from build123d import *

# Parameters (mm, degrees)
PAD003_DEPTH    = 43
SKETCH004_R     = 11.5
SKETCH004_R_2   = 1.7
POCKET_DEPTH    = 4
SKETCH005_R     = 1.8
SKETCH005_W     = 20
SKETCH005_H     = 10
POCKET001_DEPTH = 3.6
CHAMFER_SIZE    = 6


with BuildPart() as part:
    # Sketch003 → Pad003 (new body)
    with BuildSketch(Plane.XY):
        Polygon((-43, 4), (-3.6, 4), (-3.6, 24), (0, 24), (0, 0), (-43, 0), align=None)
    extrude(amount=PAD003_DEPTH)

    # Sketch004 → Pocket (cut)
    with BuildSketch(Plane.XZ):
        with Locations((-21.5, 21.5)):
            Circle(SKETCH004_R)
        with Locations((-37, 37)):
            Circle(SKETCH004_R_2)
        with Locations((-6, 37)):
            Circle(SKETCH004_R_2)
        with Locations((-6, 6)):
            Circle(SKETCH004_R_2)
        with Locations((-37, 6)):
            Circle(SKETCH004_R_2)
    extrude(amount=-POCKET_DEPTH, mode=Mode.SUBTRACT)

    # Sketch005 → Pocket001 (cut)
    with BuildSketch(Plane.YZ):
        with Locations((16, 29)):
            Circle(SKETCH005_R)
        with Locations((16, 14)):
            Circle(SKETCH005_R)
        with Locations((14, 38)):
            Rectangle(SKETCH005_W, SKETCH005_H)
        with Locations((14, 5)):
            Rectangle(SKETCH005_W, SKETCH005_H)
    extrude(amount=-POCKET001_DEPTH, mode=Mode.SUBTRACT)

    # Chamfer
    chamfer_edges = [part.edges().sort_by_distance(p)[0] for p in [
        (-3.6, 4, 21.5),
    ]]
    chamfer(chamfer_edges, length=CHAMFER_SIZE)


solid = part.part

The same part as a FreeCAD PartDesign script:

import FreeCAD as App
import Part
import Sketcher
Q = App.Units.Quantity


def edges_at(feature, points):
    """Names of the edges that pass closest to the given points."""
    edges = feature.Shape.Edges
    near = lambda p: min(range(len(edges)), key=lambda i: edges[i].distToShape(Part.Vertex(*p))[0])
    return sorted({f"Edge{near(p) + 1}" for p in points})

doc = App.newDocument("Part")
body = doc.addObject("PartDesign::Body", "Body")

sketch1 = body.newObject("Sketcher::SketchObject", "Sketch")
sketch1.AttachmentSupport = (doc.getObject("XY_Plane"), [""])
sketch1.MapMode = "FlatFace"
sketch1.addGeometry([
    Part.LineSegment(App.Vector(-3.6, 4, 0), App.Vector(-43, 4, 0)),
    Part.LineSegment(App.Vector(-43, 4, 0), App.Vector(-43, 0, 0)),
    Part.LineSegment(App.Vector(-43, 0, 0), App.Vector(0, 0, 0)),
    Part.LineSegment(App.Vector(0, 0, 0), App.Vector(0, 24, 0)),
    Part.LineSegment(App.Vector(0, 24, 0), App.Vector(-3.6, 24, 0)),
    Part.LineSegment(App.Vector(-3.6, 24, 0), App.Vector(-3.6, 4, 0)),
], False)
sketch1.addConstraint([
    Sketcher.Constraint("Coincident", 0, 2, 1, 1),
    Sketcher.Constraint("Coincident", 1, 2, 2, 1),
    Sketcher.Constraint("Coincident", 2, 2, 3, 1),
    Sketcher.Constraint("Coincident", 3, 2, 4, 1),
    Sketcher.Constraint("Coincident", 4, 2, 5, 1),
    Sketcher.Constraint("Coincident", 5, 2, 0, 1),
    Sketcher.Constraint("Horizontal", 0),
    Sketcher.Constraint("Vertical", 1),
    Sketcher.Constraint("Horizontal", 2),
    Sketcher.Constraint("Vertical", 3),
    Sketcher.Constraint("Horizontal", 4),
    Sketcher.Constraint("Vertical", 5),
    Sketcher.Constraint("Coincident", 2, 2, -1, 1),
    Sketcher.Constraint("DistanceX", 2, 1, 2, 2, Q("43 mm")),
    Sketcher.Constraint("DistanceY", 1, 2, 1, 1, Q("4 mm")),
    Sketcher.Constraint("DistanceY", 3, 1, 3, 2, Q("24 mm")),
    Sketcher.Constraint("DistanceX", 0, 2, 0, 1, Q("39.4 mm")),
])
pad1 = body.newObject("PartDesign::Pad", "Pad")
pad1.Profile = sketch1
pad1.Length = 43

sketch2 = body.newObject("Sketcher::SketchObject", "Sketch001")
sketch2.AttachmentSupport = (doc.getObject("XZ_Plane"), [""])
sketch2.MapMode = "FlatFace"
sketch2.addGeometry([
    Part.Circle(App.Vector(-21.5, 21.5, 0), App.Vector(0, 0, 1), 11.5),
    Part.Circle(App.Vector(-37, 37, 0), App.Vector(0, 0, 1), 1.7),
    Part.Circle(App.Vector(-6, 37, 0), App.Vector(0, 0, 1), 1.7),
    Part.Circle(App.Vector(-6, 6, 0), App.Vector(0, 0, 1), 1.7),
    Part.Circle(App.Vector(-37, 6, 0), App.Vector(0, 0, 1), 1.7),
], False)
sketch2.addConstraint([
    Sketcher.Constraint("Equal", 1, 2),
    Sketcher.Constraint("Equal", 2, 3),
    Sketcher.Constraint("Equal", 3, 4),
    Sketcher.Constraint("Horizontal", 1, 3, 2, 3),
    Sketcher.Constraint("Horizontal", 3, 3, 4, 3),
    Sketcher.Constraint("Vertical", 2, 3, 3, 3),
    Sketcher.Constraint("Vertical", 1, 3, 4, 3),
    Sketcher.Constraint("Diameter", 0, Q("23 mm")),
    Sketcher.Constraint("Diameter", 1, Q("3.4 mm")),
    Sketcher.Constraint("DistanceX", 1, 3, -1, 1, Q("37 mm")),
    Sketcher.Constraint("DistanceY", -1, 1, 1, 3, Q("37 mm")),
    Sketcher.Constraint("DistanceX", 2, 3, -1, 1, Q("6 mm")),
    Sketcher.Constraint("DistanceY", -1, 1, 3, 3, Q("6 mm")),
    Sketcher.Constraint("DistanceX", 0, 3, -1, 1, Q("21.5 mm")),
    Sketcher.Constraint("DistanceY", -1, 1, 0, 3, Q("21.5 mm")),
])
pocket1 = body.newObject("PartDesign::Pocket", "Pocket")
pocket1.Profile = sketch2
pocket1.Length = 4

sketch3 = body.newObject("Sketcher::SketchObject", "Sketch002")
sketch3.AttachmentSupport = (doc.getObject("YZ_Plane"), [""])
sketch3.MapMode = "FlatFace"
sketch3.addGeometry([
    Part.Circle(App.Vector(16, 29, 0), App.Vector(0, 0, 1), 1.8),
    Part.Circle(App.Vector(16, 14, 0), App.Vector(0, 0, 1), 1.8),
    Part.LineSegment(App.Vector(4, 43, 0), App.Vector(4, 33, 0)),
    Part.LineSegment(App.Vector(4, 33, 0), App.Vector(24, 33, 0)),
    Part.LineSegment(App.Vector(24, 33, 0), App.Vector(24, 43, 0)),
    Part.LineSegment(App.Vector(24, 43, 0), App.Vector(4, 43, 0)),
    Part.LineSegment(App.Vector(4, 10, 0), App.Vector(4, 0, 0)),
    Part.LineSegment(App.Vector(4, 0, 0), App.Vector(24, 0, 0)),
    Part.LineSegment(App.Vector(24, 0, 0), App.Vector(24, 10, 0)),
    Part.LineSegment(App.Vector(24, 10, 0), App.Vector(4, 10, 0)),
], False)
sketch3.addConstraint([
    Sketcher.Constraint("Coincident", 2, 2, 3, 1),
    Sketcher.Constraint("Coincident", 3, 2, 4, 1),
    Sketcher.Constraint("Coincident", 4, 2, 5, 1),
    Sketcher.Constraint("Coincident", 5, 2, 2, 1),
    Sketcher.Constraint("Coincident", 6, 2, 7, 1),
    Sketcher.Constraint("Coincident", 7, 2, 8, 1),
    Sketcher.Constraint("Coincident", 8, 2, 9, 1),
    Sketcher.Constraint("Coincident", 9, 2, 6, 1),
    Sketcher.Constraint("Vertical", 2),
    Sketcher.Constraint("Horizontal", 3),
    Sketcher.Constraint("Vertical", 4),
    Sketcher.Constraint("Horizontal", 5),
    Sketcher.Constraint("Vertical", 6),
    Sketcher.Constraint("Horizontal", 7),
    Sketcher.Constraint("Vertical", 8),
    Sketcher.Constraint("Horizontal", 9),
    Sketcher.Constraint("Equal", 0, 1),
    Sketcher.Constraint("PointOnObject", 6, 2, -1),
    Sketcher.Constraint("Vertical", 0, 3, 1, 3),
    Sketcher.Constraint("Vertical", 5, 2, 6, 2),
    Sketcher.Constraint("Vertical", 4, 2, 7, 2),
    Sketcher.Constraint("Equal", 4, 6),
    Sketcher.Constraint("Diameter", 0, Q("3.6 mm")),
    Sketcher.Constraint("DistanceX", 3, 1, 3, 2, Q("20 mm")),
    Sketcher.Constraint("DistanceY", 2, 2, 2, 1, Q("10 mm")),
    Sketcher.Constraint("DistanceX", -1, 1, 0, 3, Q("16 mm")),
    Sketcher.Constraint("DistanceY", -1, 1, 0, 3, Q("29 mm")),
    Sketcher.Constraint("DistanceY", -1, 1, 1, 3, Q("14 mm")),
    Sketcher.Constraint("DistanceX", -1, 1, 2, 2, Q("4 mm")),
    Sketcher.Constraint("DistanceY", -1, 1, 2, 2, Q("33 mm")),
])
pocket2 = body.newObject("PartDesign::Pocket", "Pocket001")
pocket2.Profile = sketch3
pocket2.Length = 3.6
doc.recompute()

chamfer = body.newObject("PartDesign::Chamfer", "Chamfer")
chamfer.Base = (pocket2, edges_at(pocket2, [(-3.6, 4, 21.5)]))
chamfer.Size = 6

doc.recompute()
